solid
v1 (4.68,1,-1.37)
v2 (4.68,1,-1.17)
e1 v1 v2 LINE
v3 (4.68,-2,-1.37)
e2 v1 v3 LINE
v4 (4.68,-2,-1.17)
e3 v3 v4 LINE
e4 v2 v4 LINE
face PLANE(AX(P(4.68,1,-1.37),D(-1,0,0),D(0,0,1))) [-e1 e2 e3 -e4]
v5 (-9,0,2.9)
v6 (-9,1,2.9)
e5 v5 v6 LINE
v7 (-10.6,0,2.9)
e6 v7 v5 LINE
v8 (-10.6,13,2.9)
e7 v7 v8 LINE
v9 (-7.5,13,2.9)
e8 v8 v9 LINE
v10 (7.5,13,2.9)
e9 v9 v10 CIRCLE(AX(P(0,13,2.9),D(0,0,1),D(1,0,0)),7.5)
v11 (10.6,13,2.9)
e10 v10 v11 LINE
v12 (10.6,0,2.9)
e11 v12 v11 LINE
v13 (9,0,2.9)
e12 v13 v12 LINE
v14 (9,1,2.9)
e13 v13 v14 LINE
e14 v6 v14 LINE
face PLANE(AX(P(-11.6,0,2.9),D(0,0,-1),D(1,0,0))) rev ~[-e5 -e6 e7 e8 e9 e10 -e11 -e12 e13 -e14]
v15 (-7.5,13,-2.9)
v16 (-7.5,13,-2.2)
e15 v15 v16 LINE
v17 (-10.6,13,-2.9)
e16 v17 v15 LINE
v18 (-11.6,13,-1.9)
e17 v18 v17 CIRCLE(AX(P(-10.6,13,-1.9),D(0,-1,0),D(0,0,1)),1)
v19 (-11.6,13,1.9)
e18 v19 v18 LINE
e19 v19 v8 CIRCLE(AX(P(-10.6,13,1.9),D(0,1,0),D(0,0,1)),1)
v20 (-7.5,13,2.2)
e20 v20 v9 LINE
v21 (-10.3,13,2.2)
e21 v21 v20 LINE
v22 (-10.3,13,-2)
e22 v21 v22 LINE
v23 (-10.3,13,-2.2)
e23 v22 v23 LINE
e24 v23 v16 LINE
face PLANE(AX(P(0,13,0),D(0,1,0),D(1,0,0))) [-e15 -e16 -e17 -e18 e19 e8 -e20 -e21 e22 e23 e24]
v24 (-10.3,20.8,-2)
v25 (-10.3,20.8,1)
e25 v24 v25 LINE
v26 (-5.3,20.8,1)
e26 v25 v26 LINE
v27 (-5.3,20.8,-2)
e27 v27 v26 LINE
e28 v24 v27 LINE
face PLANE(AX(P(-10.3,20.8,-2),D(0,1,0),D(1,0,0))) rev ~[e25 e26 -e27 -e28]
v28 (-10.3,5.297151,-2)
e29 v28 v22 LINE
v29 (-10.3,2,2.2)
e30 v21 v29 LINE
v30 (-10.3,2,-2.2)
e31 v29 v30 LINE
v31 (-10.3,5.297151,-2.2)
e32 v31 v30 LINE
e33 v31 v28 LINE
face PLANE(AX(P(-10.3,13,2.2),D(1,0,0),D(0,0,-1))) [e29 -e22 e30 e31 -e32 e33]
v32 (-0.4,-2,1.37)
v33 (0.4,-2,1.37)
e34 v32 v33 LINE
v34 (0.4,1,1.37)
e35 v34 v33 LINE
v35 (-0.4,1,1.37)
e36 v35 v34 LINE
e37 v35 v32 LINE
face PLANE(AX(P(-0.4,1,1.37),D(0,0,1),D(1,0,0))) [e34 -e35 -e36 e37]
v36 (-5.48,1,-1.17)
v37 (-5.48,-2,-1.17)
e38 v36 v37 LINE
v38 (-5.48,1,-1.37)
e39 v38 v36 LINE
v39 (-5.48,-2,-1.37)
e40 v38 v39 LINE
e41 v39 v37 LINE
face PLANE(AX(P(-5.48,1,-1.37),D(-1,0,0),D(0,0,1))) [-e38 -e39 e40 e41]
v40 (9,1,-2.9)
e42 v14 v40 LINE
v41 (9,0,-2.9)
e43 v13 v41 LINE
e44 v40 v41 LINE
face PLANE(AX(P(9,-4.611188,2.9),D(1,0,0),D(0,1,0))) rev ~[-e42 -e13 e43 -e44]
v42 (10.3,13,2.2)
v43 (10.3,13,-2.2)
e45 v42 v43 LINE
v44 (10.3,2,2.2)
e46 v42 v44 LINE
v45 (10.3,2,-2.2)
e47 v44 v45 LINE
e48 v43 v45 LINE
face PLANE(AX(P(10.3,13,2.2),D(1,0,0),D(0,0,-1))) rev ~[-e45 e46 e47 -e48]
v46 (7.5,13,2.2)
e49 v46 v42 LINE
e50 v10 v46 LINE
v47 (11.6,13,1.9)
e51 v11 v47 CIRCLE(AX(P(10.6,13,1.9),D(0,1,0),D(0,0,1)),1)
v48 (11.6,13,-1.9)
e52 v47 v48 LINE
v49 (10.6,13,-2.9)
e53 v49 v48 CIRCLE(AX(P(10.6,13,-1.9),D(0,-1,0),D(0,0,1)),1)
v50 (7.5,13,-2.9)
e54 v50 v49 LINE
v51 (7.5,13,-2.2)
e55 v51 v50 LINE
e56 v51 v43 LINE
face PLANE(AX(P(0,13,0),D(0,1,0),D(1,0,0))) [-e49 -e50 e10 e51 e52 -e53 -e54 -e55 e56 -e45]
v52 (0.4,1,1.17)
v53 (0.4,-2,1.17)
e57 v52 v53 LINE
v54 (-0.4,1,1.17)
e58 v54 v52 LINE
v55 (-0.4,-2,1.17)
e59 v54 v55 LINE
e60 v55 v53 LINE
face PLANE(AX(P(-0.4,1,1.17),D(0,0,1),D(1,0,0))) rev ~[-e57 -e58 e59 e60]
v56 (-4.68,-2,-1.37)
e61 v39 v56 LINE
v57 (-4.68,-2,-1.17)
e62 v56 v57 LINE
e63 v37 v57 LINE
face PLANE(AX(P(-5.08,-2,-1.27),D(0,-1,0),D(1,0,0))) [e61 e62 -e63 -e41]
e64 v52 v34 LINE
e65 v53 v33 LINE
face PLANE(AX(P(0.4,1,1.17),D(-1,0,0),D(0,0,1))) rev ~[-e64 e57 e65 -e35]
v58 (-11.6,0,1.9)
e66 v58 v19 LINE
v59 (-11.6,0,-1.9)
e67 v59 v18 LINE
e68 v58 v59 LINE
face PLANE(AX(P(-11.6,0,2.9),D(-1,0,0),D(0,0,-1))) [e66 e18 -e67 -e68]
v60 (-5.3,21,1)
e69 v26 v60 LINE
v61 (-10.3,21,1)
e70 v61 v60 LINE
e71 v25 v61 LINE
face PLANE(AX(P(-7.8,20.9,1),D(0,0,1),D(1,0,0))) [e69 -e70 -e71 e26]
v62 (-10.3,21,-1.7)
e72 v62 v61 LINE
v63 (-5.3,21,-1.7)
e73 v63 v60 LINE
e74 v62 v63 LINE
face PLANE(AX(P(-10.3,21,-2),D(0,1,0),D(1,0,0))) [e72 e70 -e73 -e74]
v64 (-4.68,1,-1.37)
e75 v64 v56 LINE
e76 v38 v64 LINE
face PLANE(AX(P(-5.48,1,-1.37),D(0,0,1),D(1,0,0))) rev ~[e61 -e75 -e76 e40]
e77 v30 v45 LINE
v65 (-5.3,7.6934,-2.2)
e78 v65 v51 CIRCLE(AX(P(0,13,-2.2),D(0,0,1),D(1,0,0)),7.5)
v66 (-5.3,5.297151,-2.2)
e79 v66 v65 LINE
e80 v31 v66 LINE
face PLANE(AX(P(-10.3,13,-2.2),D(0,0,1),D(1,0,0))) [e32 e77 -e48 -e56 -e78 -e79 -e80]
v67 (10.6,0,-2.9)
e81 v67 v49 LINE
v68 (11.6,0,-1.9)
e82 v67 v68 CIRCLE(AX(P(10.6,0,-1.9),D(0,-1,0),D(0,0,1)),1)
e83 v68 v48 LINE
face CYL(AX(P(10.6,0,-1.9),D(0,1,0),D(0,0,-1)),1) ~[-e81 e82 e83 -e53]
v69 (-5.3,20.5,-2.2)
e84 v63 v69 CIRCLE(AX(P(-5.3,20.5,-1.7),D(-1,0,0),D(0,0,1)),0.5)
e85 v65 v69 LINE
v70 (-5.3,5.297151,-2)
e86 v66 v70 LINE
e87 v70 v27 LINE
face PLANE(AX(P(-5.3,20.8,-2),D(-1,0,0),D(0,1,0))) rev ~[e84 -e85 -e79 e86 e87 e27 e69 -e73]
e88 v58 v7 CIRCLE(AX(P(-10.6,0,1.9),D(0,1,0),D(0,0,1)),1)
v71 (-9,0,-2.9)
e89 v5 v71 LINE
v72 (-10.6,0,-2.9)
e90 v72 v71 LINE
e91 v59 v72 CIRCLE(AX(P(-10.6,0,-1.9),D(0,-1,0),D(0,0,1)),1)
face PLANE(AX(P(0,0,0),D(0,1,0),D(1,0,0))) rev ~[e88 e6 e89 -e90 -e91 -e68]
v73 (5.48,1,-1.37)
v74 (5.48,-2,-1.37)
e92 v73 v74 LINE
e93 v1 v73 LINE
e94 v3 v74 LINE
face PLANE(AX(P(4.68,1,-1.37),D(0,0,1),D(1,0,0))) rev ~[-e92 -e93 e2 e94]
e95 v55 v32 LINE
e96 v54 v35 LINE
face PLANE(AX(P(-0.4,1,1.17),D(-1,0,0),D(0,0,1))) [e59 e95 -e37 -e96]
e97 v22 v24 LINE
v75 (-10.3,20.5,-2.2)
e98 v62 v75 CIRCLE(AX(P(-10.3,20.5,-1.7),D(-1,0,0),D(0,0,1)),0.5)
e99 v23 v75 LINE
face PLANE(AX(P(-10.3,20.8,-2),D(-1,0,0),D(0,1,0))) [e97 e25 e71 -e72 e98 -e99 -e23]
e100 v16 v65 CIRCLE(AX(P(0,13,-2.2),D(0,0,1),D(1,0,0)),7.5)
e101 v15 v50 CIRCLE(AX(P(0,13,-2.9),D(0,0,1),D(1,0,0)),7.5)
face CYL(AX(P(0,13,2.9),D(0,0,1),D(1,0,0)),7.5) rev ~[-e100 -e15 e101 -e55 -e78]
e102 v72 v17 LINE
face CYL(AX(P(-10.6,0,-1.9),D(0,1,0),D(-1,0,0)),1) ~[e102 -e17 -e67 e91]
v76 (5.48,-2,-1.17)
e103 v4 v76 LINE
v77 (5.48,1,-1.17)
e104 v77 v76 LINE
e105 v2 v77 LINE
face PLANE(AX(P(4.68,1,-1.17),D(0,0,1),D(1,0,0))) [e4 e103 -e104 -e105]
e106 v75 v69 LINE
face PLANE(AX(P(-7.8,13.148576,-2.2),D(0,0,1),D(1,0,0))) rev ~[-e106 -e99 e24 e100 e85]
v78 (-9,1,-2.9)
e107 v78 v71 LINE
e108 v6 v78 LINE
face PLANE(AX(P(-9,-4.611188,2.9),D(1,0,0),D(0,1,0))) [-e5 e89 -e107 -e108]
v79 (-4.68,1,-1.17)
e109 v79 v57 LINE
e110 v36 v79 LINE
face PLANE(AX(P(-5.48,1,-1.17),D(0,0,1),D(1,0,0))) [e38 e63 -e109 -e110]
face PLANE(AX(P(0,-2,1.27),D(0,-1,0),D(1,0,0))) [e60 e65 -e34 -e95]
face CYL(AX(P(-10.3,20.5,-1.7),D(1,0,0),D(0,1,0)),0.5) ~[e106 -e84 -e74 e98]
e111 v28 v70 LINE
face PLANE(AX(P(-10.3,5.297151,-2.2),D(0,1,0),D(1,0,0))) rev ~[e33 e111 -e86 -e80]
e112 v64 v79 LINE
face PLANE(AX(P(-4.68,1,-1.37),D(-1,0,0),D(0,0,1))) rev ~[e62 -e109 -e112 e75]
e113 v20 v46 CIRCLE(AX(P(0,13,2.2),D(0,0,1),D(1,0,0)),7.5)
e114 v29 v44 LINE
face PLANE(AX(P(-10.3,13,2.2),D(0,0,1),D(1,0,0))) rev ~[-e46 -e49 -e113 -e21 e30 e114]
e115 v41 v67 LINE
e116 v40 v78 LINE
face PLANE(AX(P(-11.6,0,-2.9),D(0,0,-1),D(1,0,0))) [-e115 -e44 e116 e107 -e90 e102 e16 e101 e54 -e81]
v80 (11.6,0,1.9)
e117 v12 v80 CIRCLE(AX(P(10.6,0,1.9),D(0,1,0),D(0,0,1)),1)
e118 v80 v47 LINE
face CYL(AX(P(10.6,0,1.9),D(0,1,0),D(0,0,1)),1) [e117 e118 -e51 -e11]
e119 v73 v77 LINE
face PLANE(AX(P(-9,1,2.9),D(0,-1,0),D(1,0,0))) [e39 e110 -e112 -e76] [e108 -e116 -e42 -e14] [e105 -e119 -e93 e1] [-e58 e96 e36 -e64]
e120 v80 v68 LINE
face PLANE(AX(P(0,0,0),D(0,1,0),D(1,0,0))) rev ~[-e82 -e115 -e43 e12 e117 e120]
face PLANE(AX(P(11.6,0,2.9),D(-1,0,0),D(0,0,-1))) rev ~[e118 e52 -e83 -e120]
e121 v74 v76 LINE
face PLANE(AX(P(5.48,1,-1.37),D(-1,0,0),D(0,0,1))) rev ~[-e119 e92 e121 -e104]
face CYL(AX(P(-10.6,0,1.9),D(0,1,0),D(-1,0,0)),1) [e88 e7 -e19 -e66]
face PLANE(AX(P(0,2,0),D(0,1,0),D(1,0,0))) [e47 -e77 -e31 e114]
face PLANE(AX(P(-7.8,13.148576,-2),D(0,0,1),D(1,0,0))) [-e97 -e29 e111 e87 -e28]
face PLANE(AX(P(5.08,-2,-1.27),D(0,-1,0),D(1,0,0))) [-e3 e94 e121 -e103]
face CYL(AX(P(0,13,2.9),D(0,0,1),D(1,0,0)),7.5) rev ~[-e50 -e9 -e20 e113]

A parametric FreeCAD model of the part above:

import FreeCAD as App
import Part
import Sketcher

V = App.Vector
Q = App.Units.Quantity


def edges_at(feature, points):
    """Names of the edges that pass closest to the given points."""
    edges = feature.Shape.Edges
    near = lambda p: min(range(len(edges)), key=lambda i: edges[i].distToShape(Part.Vertex(*p))[0])
    return sorted({f"Edge{near(p) + 1}" for p in points})

doc = App.newDocument("Part")
body = doc.addObject("PartDesign::Body", "Body")

# Sketch on XZ plane
sketch1 = body.newObject("Sketcher::SketchObject", "Sketch")
sketch1.AttachmentSupport = (doc.getObject("XZ_Plane"), [""])
sketch1.MapMode = "FlatFace"
sketch1.addGeometry(Part.LineSegment(V(-12, -3, 0), V(-12, 3, 0)), False)
sketch1.addGeometry(Part.LineSegment(V(-12, 3, 0), V(12, 3, 0)), False)
sketch1.addGeometry(Part.LineSegment(V(12, 3, 0), V(12, -3, 0)), False)
sketch1.addGeometry(Part.LineSegment(V(12, -3, 0), V(-12, -3, 0)), False)
sketch1.addConstraint(Sketcher.Constraint("Coincident", 0, 2, 1, 1))
sketch1.addConstraint(Sketcher.Constraint("Coincident", 1, 2, 2, 1))
sketch1.addConstraint(Sketcher.Constraint("Coincident", 2, 2, 3, 1))
sketch1.addConstraint(Sketcher.Constraint("Coincident", 3, 2, 0, 1))
sketch1.addConstraint(Sketcher.Constraint("Vertical", 0))
sketch1.addConstraint(Sketcher.Constraint("Horizontal", 1))
sketch1.addConstraint(Sketcher.Constraint("Vertical", 2))
sketch1.addConstraint(Sketcher.Constraint("Horizontal", 3))
sketch1.addConstraint(Sketcher.Constraint("Symmetric", 0, 2, 2, 2, -1, 1))
sketch1.addConstraint(Sketcher.Constraint("DistanceX", 1, 1, 1, 2, Q("23.2 mm")))
sketch1.addConstraint(Sketcher.Constraint("DistanceY", 0, 1, 0, 2, Q("5.8 mm")))
pad1 = body.newObject("PartDesign::Pad", "Pad")
pad1.Profile = sketch1
pad1.Length = 13
pad1.Reversed = True

# Sketch on XY plane
sketch2 = body.newObject("Sketcher::SketchObject", "Sketch001")
sketch2.AttachmentSupport = (doc.getObject("XY_Plane"), [""])
sketch2.MapMode = "FlatFace"
sketch2.AttachmentOffset = App.Placement(V(0, 0, 2.9), App.Rotation())
sketch2.addGeometry(Part.Circle(V(0, 13, 0), V(0, 0, 1), 8), False)
sketch2.addGeometry(Part.LineSegment(V(-9, 1, 0), V(-9, -5, 0)), False)
sketch2.addGeometry(Part.LineSegment(V(-9, -5, 0), V(9, -5, 0)), False)
sketch2.addGeometry(Part.LineSegment(V(9, -5, 0), V(9, 1, 0)), False)
sketch2.addGeometry(Part.LineSegment(V(9, 1, 0), V(-9, 1, 0)), False)
sketch2.addConstraint(Sketcher.Constraint("Coincident", 1, 2, 2, 1))
sketch2.addConstraint(Sketcher.Constraint("Coincident", 2, 2, 3, 1))
sketch2.addConstraint(Sketcher.Constraint("Coincident", 3, 2, 4, 1))
sketch2.addConstraint(Sketcher.Constraint("Coincident", 4, 2, 1, 1))
sketch2.addConstraint(Sketcher.Constraint("Vertical", 1))
sketch2.addConstraint(Sketcher.Constraint("Horizontal", 2))
sketch2.addConstraint(Sketcher.Constraint("Vertical", 3))
sketch2.addConstraint(Sketcher.Constraint("Horizontal", 4))
sketch2.addConstraint(Sketcher.Constraint("PointOnObject", 0, 3, -2))
sketch2.addConstraint(Sketcher.Constraint("Diameter", 0, Q("15 mm")))
sketch2.addConstraint(Sketcher.Constraint("DistanceX", 2, 1, 2, 2, Q("18 mm")))
sketch2.addConstraint(Sketcher.Constraint("DistanceY", -1, 1, 0, 3, Q("13 mm")))
sketch2.addConstraint(Sketcher.Constraint("DistanceX", 1, 2, -1, 1, Q("9 mm")))
sketch2.addConstraint(Sketcher.Constraint("DistanceY", -1, 1, 3, 2, Q("1 mm")))
sketch2.addConstraint(Sketcher.Constraint("DistanceY", 1, 2, 1, 1, Q("5.611188 mm")))
pocket1 = body.newObject("PartDesign::Pocket", "Pocket")
pocket1.Profile = sketch2
pocket1.Type = "ThroughAll"

# Sketch on XZ plane
sketch3 = body.newObject("Sketcher::SketchObject", "Sketch002")
sketch3.AttachmentSupport = (doc.getObject("XZ_Plane"), [""])
sketch3.MapMode = "FlatFace"
sketch3.AttachmentOffset = App.Placement(V(0, 0, -13), App.Rotation())
sketch3.addGeometry(Part.LineSegment(V(-10.3, -2.2, 0), V(-10.3, 2.2, 0)), False)
sketch3.addGeometry(Part.LineSegment(V(-10.3, 2.2, 0), V(10.3, 2.2, 0)), False)
sketch3.addGeometry(Part.LineSegment(V(10.3, 2.2, 0), V(10.3, -2.2, 0)), False)
sketch3.addGeometry(Part.LineSegment(V(10.3, -2.2, 0), V(-10.3, -2.2, 0)), False)
sketch3.addConstraint(Sketcher.Constraint("Coincident", 0, 2, 1, 1))
sketch3.addConstraint(Sketcher.Constraint("Coincident", 1, 2, 2, 1))
sketch3.addConstraint(Sketcher.Constraint("Coincident", 2, 2, 3, 1))
sketch3.addConstraint(Sketcher.Constraint("Coincident", 3, 2, 0, 1))
sketch3.addConstraint(Sketcher.Constraint("Vertical", 0))
sketch3.addConstraint(Sketcher.Constraint("Horizontal", 1))
sketch3.addConstraint(Sketcher.Constraint("Vertical", 2))
sketch3.addConstraint(Sketcher.Constraint("Horizontal", 3))
sketch3.addConstraint(Sketcher.Constraint("Symmetric", 0, 2, 2, 2, -1, 1))
sketch3.addConstraint(Sketcher.Constraint("DistanceX", 1, 1, 1, 2, Q("20.6 mm")))
sketch3.addConstraint(Sketcher.Constraint("DistanceY", 0, 1, 0, 2, Q("4.4 mm")))
pocket2 = body.newObject("PartDesign::Pocket", "Pocket001")
pocket2.Profile = sketch3
pocket2.Length = 11
pocket2.Reversed = True

# Sketch on XZ plane
sketch4 = body.newObject("Sketcher::SketchObject", "Sketch003")
sketch4.AttachmentSupport = (doc.getObject("XZ_Plane"), [""])
sketch4.MapMode = "FlatFace"
sketch4.AttachmentOffset = App.Placement(V(0, 0, -1), App.Rotation())
sketch4.addGeometry(Part.LineSegment(V(-0.4, 1.37, 0), V(-0.4, 1.17, 0)), False)
sketch4.addGeometry(Part.LineSegment(V(-0.4, 1.17, 0), V(0.4, 1.17, 0)), False)
sketch4.addGeometry(Part.LineSegment(V(0.4, 1.17, 0), V(0.4, 1.37, 0)), False)
sketch4.addGeometry(Part.LineSegment(V(0.4, 1.37, 0), V(-0.4, 1.37, 0)), False)
sketch4.addGeometry(Part.LineSegment(V(-5.48, -1.17, 0), V(-5.48, -1.37, 0)), False)
sketch4.addGeometry(Part.LineSegment(V(-5.48, -1.37, 0), V(-4.68, -1.37, 0)), False)
sketch4.addGeometry(Part.LineSegment(V(-4.68, -1.37, 0), V(-4.68, -1.17, 0)), False)
sketch4.addGeometry(Part.LineSegment(V(-4.68, -1.17, 0), V(-5.48, -1.17, 0)), False)
sketch4.addGeometry(Part.LineSegment(V(4.68, -1.17, 0), V(4.68, -1.37, 0)), False)
sketch4.addGeometry(Part.LineSegment(V(4.68, -1.37, 0), V(5.48, -1.37, 0)), False)
sketch4.addGeometry(Part.LineSegment(V(5.48, -1.37, 0), V(5.48, -1.17, 0)), False)
sketch4.addGeometry(Part.LineSegment(V(5.48, -1.17, 0), V(4.68, -1.17, 0)), False)
sketch4.addConstraint(Sketcher.Constraint("Coincident", 0, 2, 1, 1))
sketch4.addConstraint(Sketcher.Constraint("Coincident", 1, 2, 2, 1))
sketch4.addConstraint(Sketcher.Constraint("Coincident", 2, 2, 3, 1))
sketch4.addConstraint(Sketcher.Constraint("Coincident", 3, 2, 0, 1))
sketch4.addConstraint(Sketcher.Constraint("Coincident", 4, 2, 5, 1))
sketch4.addConstraint(Sketcher.Constraint("Coincident", 5, 2, 6, 1))
sketch4.addConstraint(Sketcher.Constraint("Coincident", 6, 2, 7, 1))
sketch4.addConstraint(Sketcher.Constraint("Coincident", 7, 2, 4, 1))
sketch4.addConstraint(Sketcher.Constraint("Coincident", 8, 2, 9, 1))
sketch4.addConstraint(Sketcher.Constraint("Coincident", 9, 2, 10, 1))
sketch4.addConstraint(Sketcher.Constraint("Coincident", 10, 2, 11, 1))
sketch4.addConstraint(Sketcher.Constraint("Coincident", 11, 2, 8, 1))
sketch4.addConstraint(Sketcher.Constraint("Vertical", 0))
sketch4.addConstraint(Sketcher.Constraint("Horizontal", 1))
sketch4.addConstraint(Sketcher.Constraint("Vertical", 2))
sketch4.addConstraint(Sketcher.Constraint("Horizontal", 3))
sketch4.addConstraint(Sketcher.Constraint("Vertical", 4))
sketch4.addConstraint(Sketcher.Constraint("Horizontal", 5))
sketch4.addConstraint(Sketcher.Constraint("Vertical", 6))
sketch4.addConstraint(Sketcher.Constraint("Horizontal", 7))
sketch4.addConstraint(Sketcher.Constraint("Vertical", 8))
sketch4.addConstraint(Sketcher.Constraint("Horizontal", 9))
sketch4.addConstraint(Sketcher.Constraint("Vertical", 10))
sketch4.addConstraint(Sketcher.Constraint("Horizontal", 11))
sketch4.addConstraint(Sketcher.Constraint("Symmetric", 5, 2, 8, 2, -2))
sketch4.addConstraint(Sketcher.Constraint("Symmetric", 7, 2, 10, 2, -2))
sketch4.addConstraint(Sketcher.Constraint("Equal", 3, 5))
sketch4.addConstraint(Sketcher.Constraint("Equal", 2, 4))
sketch4.addConstraint(Sketcher.Constraint("DistanceX", 1, 1, 1, 2, Q("0.8 mm")))
sketch4.addConstraint(Sketcher.Constraint("DistanceY", 0, 2, 0, 1, Q("0.2 mm")))
sketch4.addConstraint(Sketcher.Constraint("DistanceX", 0, 2, -1, 1, Q("0.4 mm")))
sketch4.addConstraint(Sketcher.Constraint("DistanceY", -1, 1, 0, 2, Q("1.17 mm")))
sketch4.addConstraint(Sketcher.Constraint("DistanceX", 4, 2, -1, 1, Q("5.48 mm")))
sketch4.addConstraint(Sketcher.Constraint("DistanceY", 4, 2, -1, 1, Q("1.37 mm")))
pad2 = body.newObject("PartDesign::Pad", "Pad001")
pad2.Profile = sketch4
pad2.Length = 3
doc.recompute()

fillet = body.newObject("PartDesign::Fillet", "Fillet")
fillet.Base = (pad2, edges_at(pad2, [
    (11.6, 6.5, 2.9),
    (-11.6, 6.5, 2.9),
    (-11.6, 6.5, -2.9),
    (11.6, 6.5, -2.9),
]))
fillet.Radius = 1

# Sketch on XY plane
sketch5 = body.newObject("Sketcher::SketchObject", "Sketch004")
sketch5.AttachmentSupport = (doc.getObject("XY_Plane"), [""])
sketch5.MapMode = "FlatFace"
sketch5.AttachmentOffset = App.Placement(V(0, 0, -2.2), App.Rotation())
sketch5.addGeometry(Part.LineSegment(V(-10, 21, 0), V(-10, 5, 0)), False)
sketch5.addGeometry(Part.LineSegment(V(-10, 5, 0), V(-5, 5, 0)), False)
sketch5.addGeometry(Part.LineSegment(V(-5, 5, 0), V(-5, 21, 0)), False)
sketch5.addGeometry(Part.LineSegment(V(-5, 21, 0), V(-10, 21, 0)), False)
sketch5.addConstraint(Sketcher.Constraint("Coincident", 0, 2, 1, 1))
sketch5.addConstraint(Sketcher.Constraint("Coincident", 1, 2, 2, 1))
sketch5.addConstraint(Sketcher.Constraint("Coincident", 2, 2, 3, 1))
sketch5.addConstraint(Sketcher.Constraint("Coincident", 3, 2, 0, 1))
sketch5.addConstraint(Sketcher.Constraint("Vertical", 0))
sketch5.addConstraint(Sketcher.Constraint("Horizontal", 1))
sketch5.addConstraint(Sketcher.Constraint("Vertical", 2))
sketch5.addConstraint(Sketcher.Constraint("Horizontal", 3))
sketch5.addConstraint(Sketcher.Constraint("DistanceX", 1, 1, 1, 2, Q("5 mm")))
sketch5.addConstraint(Sketcher.Constraint("DistanceY", -1, 1, 2, 2, Q("21 mm")))
sketch5.addConstraint(Sketcher.Constraint("DistanceX", 0, 2, -1, 1, Q("10.3 mm")))
sketch5.addConstraint(Sketcher.Constraint("DistanceY", 0, 2, 0, 1, Q("15.702849 mm")))
pad3 = body.newObject("PartDesign::Pad", "Pad002")
pad3.Profile = sketch5
pad3.Length = 0.2

# Sketch on XY plane
sketch6 = body.newObject("Sketcher::SketchObject", "Sketch005")
sketch6.AttachmentSupport = (doc.getObject("XY_Plane"), [""])
sketch6.MapMode = "FlatFace"
sketch6.AttachmentOffset = App.Placement(V(0, 0, -2), App.Rotation())
sketch6.addGeometry(Part.LineSegment(V(-10.3, 21, 0), V(-10.3, 20.8, 0)), False)
sketch6.addGeometry(Part.LineSegment(V(-10.3, 20.8, 0), V(-5.3, 20.8, 0)), False)
sketch6.addGeometry(Part.LineSegment(V(-5.3, 20.8, 0), V(-5.3, 21, 0)), False)
sketch6.addGeometry(Part.LineSegment(V(-5.3, 21, 0), V(-10.3, 21, 0)), False)
sketch6.addConstraint(Sketcher.Constraint("Coincident", 0, 2, 1, 1))
sketch6.addConstraint(Sketcher.Constraint("Coincident", 1, 2, 2, 1))
sketch6.addConstraint(Sketcher.Constraint("Coincident", 2, 2, 3, 1))
sketch6.addConstraint(Sketcher.Constraint("Coincident", 3, 2, 0, 1))
sketch6.addConstraint(Sketcher.Constraint("Vertical", 0))
sketch6.addConstraint(Sketcher.Constraint("Horizontal", 1))
sketch6.addConstraint(Sketcher.Constraint("Vertical", 2))
sketch6.addConstraint(Sketcher.Constraint("Horizontal", 3))
sketch6.addConstraint(Sketcher.Constraint("DistanceX", 1, 1, 1, 2, Q("5 mm")))
sketch6.addConstraint(Sketcher.Constraint("DistanceY", 0, 2, 0, 1, Q("0.2 mm")))
sketch6.addConstraint(Sketcher.Constraint("DistanceY", -1, 1, 2, 2, Q("21 mm")))
sketch6.addConstraint(Sketcher.Constraint("DistanceX", 0, 2, -1, 1, Q("10.3 mm")))
pad4 = body.newObject("PartDesign::Pad", "Pad003")
pad4.Profile = sketch6
pad4.Length = 3
doc.recompute()

fillet2 = body.newObject("PartDesign::Fillet", "Fillet001")
fillet2.Base = (pad4, edges_at(pad4, [(-7.8, 21, -2.2)]))
fillet2.Radius = 0.5

doc.recompute()
